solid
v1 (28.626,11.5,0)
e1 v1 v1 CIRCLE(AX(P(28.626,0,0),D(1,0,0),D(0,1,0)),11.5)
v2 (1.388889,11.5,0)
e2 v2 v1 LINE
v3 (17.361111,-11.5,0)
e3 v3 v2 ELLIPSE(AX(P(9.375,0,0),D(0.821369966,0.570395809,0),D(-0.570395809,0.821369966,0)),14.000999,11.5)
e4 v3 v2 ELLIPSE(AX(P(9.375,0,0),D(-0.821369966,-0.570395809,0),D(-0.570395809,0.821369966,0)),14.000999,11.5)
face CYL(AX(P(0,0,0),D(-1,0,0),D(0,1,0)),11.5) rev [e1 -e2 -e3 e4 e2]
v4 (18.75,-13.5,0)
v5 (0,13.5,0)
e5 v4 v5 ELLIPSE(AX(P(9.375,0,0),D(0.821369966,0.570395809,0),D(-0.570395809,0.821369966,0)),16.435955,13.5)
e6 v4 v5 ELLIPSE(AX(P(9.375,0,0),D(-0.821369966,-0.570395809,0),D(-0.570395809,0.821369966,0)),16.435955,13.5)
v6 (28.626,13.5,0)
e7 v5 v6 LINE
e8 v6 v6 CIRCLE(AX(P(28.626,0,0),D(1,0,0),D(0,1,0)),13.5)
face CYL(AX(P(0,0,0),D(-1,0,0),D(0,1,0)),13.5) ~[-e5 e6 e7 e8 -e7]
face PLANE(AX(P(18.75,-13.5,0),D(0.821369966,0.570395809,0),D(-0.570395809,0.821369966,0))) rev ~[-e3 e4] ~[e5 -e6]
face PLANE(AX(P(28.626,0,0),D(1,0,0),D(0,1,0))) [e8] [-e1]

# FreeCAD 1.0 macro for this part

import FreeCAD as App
import Part
import Sketcher

V = App.Vector
Q = App.Units.Quantity


def add_polygon(sketch, points):
    """Adds a closed chain of lines whose ends are joined by coincident constraints."""
    first, n = sketch.GeometryCount, len(points)
    for a, b in zip(points, points[1:] + points[:1]):
        sketch.addGeometry(Part.LineSegment(App.Vector(*a, 0), App.Vector(*b, 0)), False)
    for i in range(n):
        sketch.addConstraint(Sketcher.Constraint("Coincident", first + i, 2, first + (i + 1) % n, 1))

doc = App.newDocument("Part")
body = doc.addObject("PartDesign::Body", "Body")

sketch1 = body.newObject("Sketcher::SketchObject", "Sketch")
sketch1.AttachmentSupport = (doc.getObject("YZ_Plane"), [""])
sketch1.MapMode = "FlatFace"
sketch1.addGeometry([
    Part.Circle(V(0, 0, 0), V(0, 0, 1), 14),
    Part.Circle(V(0, 0, 0), V(0, 0, 1), 12),
], False)
sketch1.addConstraint([
    Sketcher.Constraint("Coincident", 0, 3, -1, 1),
    Sketcher.Constraint("Coincident", 1, 3, -1, 1),
    Sketcher.Constraint("Diameter", 0, Q("27 mm")),
    Sketcher.Constraint("Diameter", 1, Q("23 mm")),
])
pad1 = body.newObject("PartDesign::Pad", "Pad")
pad1.Profile = sketch1
pad1.Length = 28.626

sketch2 = body.newObject("Sketcher::SketchObject", "Sketch001")
sketch2.AttachmentSupport = (doc.getObject("XY_Plane"), [""])
sketch2.MapMode = "FlatFace"
add_polygon(sketch2, [(19, -14), (0, 14), (0, -14)])
sketch2.addConstraint([
    Sketcher.Constraint("Vertical", 1),
    Sketcher.Constraint("Horizontal", 2),
    Sketcher.Constraint("Symmetric", 0, 2, 1, 2, -1, 1),
    Sketcher.Constraint("DistanceY", 1, 2, 1, 1, Q("27 mm")),
    Sketcher.Constraint("DistanceX", 2, 1, 2, 2, Q("18.75 mm")),
])
pocket1 = body.newObject("PartDesign::Pocket", "Pocket")
pocket1.Profile = sketch2
pocket1.Type = "ThroughAll"
pocket1.Midplane = True

doc.recompute()
